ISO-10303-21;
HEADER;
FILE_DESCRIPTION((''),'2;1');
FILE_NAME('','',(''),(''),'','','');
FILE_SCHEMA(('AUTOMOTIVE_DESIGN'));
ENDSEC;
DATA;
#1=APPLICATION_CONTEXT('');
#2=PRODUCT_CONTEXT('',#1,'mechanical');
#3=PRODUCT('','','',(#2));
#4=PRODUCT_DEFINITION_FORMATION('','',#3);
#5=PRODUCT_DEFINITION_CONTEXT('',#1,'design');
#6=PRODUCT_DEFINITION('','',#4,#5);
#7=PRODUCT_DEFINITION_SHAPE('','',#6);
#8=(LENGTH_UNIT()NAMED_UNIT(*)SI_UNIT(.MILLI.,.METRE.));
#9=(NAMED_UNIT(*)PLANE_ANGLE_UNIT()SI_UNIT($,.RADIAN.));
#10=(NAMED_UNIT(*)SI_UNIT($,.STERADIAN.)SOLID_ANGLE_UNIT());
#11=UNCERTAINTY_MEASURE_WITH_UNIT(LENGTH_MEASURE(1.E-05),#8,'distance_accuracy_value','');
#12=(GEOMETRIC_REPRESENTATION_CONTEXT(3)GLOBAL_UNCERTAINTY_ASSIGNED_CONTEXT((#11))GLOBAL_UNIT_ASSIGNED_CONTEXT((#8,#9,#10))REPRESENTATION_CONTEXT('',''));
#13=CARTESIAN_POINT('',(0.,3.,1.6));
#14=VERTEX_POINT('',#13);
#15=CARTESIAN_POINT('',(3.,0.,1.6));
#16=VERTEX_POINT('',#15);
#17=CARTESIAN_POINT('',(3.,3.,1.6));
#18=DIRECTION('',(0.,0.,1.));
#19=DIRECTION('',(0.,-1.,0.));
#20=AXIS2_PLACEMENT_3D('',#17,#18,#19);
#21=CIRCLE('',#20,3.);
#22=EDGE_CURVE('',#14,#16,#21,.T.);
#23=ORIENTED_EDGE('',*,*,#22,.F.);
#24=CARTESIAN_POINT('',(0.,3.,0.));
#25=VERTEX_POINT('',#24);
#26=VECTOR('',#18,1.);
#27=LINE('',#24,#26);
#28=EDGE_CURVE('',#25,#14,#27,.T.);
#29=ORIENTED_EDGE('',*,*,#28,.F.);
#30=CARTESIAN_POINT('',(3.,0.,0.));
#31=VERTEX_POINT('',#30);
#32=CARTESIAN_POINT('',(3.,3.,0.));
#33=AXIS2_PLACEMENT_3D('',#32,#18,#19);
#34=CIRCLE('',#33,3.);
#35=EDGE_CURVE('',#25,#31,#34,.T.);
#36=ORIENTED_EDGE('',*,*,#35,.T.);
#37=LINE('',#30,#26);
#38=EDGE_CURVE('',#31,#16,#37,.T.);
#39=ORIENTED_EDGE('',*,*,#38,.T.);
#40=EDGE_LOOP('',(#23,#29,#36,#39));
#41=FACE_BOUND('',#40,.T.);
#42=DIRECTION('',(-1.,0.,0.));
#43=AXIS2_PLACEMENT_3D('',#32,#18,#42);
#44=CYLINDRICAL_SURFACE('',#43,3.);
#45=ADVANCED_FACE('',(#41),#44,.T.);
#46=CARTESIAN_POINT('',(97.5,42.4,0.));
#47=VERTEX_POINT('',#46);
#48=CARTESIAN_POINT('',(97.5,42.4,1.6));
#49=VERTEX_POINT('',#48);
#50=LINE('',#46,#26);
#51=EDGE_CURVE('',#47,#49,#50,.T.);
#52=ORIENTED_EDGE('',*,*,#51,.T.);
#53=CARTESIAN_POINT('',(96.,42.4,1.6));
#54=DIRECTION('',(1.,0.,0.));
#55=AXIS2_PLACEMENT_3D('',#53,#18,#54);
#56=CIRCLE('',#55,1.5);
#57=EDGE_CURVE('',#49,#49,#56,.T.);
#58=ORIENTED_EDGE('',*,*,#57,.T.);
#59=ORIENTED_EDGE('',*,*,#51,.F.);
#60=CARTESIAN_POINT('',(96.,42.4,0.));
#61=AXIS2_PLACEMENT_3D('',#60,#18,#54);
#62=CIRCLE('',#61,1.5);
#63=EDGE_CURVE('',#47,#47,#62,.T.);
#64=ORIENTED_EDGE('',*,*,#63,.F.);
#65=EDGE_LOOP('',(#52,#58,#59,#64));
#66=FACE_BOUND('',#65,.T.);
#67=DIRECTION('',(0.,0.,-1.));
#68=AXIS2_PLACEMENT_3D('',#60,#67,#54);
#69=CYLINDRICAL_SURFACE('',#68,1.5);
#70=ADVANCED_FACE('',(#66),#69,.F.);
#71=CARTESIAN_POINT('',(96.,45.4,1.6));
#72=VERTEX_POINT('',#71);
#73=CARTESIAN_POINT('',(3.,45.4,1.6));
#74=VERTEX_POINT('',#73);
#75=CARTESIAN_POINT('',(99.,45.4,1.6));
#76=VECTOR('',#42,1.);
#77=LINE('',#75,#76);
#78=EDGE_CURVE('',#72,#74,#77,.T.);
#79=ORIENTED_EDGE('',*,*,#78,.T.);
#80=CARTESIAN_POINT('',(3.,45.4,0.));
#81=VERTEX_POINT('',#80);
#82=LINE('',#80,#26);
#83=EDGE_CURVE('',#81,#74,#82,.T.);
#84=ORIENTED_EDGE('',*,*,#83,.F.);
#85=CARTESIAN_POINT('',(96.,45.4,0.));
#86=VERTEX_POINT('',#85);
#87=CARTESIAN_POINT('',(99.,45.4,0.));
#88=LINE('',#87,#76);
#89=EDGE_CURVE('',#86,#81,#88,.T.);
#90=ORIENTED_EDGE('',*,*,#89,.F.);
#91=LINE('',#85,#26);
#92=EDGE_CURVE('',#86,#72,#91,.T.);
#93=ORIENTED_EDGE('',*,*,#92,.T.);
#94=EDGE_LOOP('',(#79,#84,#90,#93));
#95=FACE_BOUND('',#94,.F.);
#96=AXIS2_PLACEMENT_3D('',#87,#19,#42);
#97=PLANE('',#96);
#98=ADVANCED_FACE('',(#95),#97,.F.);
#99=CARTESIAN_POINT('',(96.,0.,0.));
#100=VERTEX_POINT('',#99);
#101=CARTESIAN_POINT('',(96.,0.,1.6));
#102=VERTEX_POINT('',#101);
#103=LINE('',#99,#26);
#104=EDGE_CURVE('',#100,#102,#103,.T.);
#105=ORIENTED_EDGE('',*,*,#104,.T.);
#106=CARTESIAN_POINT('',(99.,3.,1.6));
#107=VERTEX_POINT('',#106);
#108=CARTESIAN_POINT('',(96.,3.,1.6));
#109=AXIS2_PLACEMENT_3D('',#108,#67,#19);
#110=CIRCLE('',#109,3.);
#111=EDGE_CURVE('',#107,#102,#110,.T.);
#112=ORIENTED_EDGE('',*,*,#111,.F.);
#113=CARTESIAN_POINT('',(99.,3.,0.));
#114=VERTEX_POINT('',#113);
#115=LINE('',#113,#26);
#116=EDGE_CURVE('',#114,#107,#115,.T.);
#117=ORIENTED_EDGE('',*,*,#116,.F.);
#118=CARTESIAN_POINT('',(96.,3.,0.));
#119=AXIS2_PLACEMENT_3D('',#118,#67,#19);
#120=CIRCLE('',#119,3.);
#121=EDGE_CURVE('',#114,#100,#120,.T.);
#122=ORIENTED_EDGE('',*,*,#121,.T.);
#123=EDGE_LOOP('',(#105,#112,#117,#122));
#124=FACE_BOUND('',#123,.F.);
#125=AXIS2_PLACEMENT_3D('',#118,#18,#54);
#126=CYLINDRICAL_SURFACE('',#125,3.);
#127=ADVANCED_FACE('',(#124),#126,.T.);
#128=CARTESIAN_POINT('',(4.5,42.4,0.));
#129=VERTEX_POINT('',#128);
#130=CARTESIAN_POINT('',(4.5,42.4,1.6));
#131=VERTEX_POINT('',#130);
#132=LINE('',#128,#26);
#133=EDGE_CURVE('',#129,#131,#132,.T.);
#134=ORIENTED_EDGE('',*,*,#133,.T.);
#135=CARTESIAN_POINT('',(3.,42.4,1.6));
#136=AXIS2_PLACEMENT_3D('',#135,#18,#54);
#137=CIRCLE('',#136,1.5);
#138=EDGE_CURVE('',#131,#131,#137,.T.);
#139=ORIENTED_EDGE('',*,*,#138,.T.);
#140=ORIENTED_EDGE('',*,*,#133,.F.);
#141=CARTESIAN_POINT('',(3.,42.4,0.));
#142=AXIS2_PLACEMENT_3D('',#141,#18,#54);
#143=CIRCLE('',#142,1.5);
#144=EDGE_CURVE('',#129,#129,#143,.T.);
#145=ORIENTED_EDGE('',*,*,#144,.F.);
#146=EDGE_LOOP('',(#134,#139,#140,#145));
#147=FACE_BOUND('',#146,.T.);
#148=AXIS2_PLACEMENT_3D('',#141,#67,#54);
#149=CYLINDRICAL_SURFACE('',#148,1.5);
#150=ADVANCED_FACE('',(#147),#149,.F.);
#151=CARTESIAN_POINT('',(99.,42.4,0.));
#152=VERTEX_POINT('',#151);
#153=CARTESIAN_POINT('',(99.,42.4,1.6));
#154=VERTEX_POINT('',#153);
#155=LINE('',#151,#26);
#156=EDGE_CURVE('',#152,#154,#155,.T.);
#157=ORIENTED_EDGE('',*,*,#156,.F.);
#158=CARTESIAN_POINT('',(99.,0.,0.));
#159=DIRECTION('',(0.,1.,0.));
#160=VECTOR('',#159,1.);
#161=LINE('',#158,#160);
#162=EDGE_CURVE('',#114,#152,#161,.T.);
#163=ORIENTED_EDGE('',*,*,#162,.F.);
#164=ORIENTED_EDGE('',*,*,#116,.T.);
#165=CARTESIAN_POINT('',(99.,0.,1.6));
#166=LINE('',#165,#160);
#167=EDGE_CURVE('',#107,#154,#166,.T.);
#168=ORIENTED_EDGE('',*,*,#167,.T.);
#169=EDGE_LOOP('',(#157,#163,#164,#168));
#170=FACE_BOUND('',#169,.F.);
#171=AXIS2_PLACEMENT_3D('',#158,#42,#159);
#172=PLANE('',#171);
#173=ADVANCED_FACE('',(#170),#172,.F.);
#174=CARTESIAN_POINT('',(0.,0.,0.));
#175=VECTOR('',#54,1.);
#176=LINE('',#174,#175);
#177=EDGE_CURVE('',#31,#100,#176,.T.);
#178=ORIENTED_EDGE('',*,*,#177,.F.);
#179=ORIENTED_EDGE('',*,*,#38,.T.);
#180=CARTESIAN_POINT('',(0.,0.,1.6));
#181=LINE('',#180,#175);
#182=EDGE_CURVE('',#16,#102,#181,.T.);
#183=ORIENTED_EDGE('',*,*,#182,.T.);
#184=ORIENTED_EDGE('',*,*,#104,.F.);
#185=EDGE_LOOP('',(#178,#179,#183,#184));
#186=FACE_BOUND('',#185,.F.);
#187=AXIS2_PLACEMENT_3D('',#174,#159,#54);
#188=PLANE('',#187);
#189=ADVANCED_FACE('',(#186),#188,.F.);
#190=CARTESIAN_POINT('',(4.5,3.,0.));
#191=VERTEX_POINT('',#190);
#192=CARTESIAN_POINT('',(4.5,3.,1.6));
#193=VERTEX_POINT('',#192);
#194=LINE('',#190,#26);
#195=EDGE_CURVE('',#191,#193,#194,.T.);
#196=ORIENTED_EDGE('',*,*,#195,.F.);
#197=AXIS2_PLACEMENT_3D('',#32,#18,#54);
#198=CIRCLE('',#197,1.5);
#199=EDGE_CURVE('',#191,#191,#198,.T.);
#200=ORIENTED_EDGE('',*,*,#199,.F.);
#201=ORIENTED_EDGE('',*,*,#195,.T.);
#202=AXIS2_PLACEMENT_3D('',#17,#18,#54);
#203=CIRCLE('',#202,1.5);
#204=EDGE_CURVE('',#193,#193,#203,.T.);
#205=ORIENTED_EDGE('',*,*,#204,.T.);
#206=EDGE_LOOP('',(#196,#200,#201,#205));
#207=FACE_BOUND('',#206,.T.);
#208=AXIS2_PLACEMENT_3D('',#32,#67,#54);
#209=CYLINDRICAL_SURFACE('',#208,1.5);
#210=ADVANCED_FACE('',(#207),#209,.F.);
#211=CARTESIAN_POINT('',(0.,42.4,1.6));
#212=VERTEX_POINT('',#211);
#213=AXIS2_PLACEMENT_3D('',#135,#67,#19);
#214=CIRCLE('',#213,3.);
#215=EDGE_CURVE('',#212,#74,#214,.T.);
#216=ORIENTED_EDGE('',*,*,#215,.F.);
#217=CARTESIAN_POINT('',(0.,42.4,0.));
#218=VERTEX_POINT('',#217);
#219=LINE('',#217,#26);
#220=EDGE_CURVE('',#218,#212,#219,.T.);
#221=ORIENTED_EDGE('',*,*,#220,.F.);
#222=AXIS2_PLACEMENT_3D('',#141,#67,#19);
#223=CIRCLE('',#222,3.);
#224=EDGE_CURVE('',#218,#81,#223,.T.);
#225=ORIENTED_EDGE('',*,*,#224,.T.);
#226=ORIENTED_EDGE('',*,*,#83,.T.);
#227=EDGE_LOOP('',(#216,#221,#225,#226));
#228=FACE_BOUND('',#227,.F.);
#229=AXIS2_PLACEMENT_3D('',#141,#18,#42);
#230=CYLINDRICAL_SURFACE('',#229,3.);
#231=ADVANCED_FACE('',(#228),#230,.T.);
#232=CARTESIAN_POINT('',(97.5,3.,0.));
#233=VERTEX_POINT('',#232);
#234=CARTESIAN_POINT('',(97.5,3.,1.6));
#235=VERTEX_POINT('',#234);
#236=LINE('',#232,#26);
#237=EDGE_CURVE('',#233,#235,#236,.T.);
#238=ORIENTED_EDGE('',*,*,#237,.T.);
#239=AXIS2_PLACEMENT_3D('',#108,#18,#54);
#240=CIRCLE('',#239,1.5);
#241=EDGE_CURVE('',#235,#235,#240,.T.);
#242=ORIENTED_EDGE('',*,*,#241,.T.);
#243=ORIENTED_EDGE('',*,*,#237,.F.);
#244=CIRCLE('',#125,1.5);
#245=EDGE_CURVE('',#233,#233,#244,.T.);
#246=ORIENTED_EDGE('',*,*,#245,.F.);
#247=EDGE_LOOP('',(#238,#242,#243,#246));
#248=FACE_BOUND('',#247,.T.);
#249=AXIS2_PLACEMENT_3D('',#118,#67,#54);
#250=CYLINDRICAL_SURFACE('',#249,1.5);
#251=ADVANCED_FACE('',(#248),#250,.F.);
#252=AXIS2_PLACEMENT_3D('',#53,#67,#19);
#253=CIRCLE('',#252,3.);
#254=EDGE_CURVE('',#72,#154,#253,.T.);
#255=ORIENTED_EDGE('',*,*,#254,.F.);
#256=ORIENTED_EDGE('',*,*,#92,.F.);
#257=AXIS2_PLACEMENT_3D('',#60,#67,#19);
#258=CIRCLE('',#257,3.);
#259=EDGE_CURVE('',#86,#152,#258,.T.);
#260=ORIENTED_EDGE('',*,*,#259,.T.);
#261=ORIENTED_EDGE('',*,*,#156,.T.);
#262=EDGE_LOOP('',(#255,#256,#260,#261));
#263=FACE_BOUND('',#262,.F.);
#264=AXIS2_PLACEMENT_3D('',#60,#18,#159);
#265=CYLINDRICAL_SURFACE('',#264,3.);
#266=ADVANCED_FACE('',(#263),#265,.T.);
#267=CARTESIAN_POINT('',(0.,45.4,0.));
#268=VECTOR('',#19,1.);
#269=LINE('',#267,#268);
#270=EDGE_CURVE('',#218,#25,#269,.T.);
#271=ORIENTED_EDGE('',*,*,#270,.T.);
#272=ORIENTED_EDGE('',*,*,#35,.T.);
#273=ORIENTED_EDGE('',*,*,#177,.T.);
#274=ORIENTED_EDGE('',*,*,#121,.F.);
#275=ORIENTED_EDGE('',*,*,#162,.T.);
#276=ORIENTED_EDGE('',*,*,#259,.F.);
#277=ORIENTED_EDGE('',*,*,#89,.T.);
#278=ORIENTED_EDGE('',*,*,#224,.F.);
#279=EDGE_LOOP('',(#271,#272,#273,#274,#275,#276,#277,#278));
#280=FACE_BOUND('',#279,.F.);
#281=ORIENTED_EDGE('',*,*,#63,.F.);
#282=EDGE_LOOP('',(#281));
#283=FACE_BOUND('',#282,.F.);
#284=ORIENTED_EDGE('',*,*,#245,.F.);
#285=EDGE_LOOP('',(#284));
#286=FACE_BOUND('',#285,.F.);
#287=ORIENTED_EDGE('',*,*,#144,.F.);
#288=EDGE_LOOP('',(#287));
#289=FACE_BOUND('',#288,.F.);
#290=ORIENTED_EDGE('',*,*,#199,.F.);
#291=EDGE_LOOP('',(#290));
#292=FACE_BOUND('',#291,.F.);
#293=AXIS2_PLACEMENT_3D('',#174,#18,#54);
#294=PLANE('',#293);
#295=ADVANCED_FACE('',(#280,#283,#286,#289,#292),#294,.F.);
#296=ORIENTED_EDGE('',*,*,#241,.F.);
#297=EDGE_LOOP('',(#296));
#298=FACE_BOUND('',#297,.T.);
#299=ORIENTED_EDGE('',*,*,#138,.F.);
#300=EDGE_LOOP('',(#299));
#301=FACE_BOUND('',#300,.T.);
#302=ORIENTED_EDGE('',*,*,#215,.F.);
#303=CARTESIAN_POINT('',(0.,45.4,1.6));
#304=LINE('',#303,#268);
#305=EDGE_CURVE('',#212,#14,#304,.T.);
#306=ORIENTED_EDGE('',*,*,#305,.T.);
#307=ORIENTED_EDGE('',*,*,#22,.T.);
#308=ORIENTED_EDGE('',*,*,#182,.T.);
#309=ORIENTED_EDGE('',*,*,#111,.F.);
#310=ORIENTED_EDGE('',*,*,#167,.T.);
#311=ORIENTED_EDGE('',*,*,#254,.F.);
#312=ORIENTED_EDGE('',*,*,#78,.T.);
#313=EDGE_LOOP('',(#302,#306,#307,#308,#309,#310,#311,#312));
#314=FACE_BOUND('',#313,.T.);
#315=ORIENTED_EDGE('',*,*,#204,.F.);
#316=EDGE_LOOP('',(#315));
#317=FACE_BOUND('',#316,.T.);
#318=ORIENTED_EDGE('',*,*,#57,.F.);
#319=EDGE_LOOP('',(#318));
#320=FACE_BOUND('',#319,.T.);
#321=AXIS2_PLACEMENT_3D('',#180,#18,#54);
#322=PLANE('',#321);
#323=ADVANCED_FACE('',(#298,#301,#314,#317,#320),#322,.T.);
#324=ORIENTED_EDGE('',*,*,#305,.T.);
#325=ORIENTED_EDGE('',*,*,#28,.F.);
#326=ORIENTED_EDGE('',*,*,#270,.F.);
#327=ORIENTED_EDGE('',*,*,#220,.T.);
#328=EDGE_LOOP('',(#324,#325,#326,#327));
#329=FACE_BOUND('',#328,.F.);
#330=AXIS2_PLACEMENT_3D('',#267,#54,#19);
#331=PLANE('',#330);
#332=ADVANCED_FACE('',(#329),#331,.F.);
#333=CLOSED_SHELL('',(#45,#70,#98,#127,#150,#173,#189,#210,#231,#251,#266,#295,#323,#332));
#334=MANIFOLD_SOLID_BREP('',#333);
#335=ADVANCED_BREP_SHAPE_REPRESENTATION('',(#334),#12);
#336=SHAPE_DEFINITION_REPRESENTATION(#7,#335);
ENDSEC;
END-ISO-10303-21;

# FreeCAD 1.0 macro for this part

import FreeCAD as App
import Part
import Sketcher

V = App.Vector
Q = App.Units.Quantity


def edges_at(feature, points):
    """Names of the edges that pass closest to the given points."""
    edges = feature.Shape.Edges
    near = lambda p: min(range(len(edges)), key=lambda i: edges[i].distToShape(Part.Vertex(*p))[0])
    return sorted({f"Edge{near(p) + 1}" for p in points})


def add_polygon(sketch, points):
    """Adds a closed chain of lines whose ends are joined by coincident constraints."""
    first, n = sketch.GeometryCount, len(points)
    for a, b in zip(points, points[1:] + points[:1]):
        sketch.addGeometry(Part.LineSegment(App.Vector(*a, 0), App.Vector(*b, 0)), False)
    for i in range(n):
        sketch.addConstraint(Sketcher.Constraint("Coincident", first + i, 2, first + (i + 1) % n, 1))

doc = App.newDocument("Part")
params = doc.addObject("Spreadsheet::Sheet", "Params")
for row, (alias, value) in enumerate([
    ("sketch1_diameter", "3 mm"),
    ("sketch1_width", "99 mm"),
    ("sketch1_height", "45.4 mm"),
    ("pad1_length", "1.6 mm"),
    ("fillet_radius", "3 mm"),
], start=1):
    params.set(f"A{row}", alias)
    params.set(f"B{row}", "=" + value)
    params.setAlias(f"B{row}", alias)

body = doc.addObject("PartDesign::Body", "Body")

# Sketch on XY plane
sketch1 = body.newObject("Sketcher::SketchObject", "Sketch")
sketch1.AttachmentSupport = (doc.getObject("XY_Plane"), [""])
sketch1.MapMode = "FlatFace"
add_polygon(sketch1, [(0, 45.4), (0, 0), (99, 0), (99, 45.4)])  # lines 0-3
sketch1.addGeometry(Part.Circle(V(3, 3, 0), V(0, 0, 1), 1.5), False)  # 4
sketch1.addGeometry(Part.Circle(V(96, 3, 0), V(0, 0, 1), 1.5), False)  # 5
sketch1.addGeometry(Part.Circle(V(3, 42.4, 0), V(0, 0, 1), 1.5), False)  # 6
sketch1.addGeometry(Part.Circle(V(96, 42.4, 0), V(0, 0, 1), 1.5), False)  # 7
sketch1.addConstraint(Sketcher.Constraint("Vertical", 0))
sketch1.addConstraint(Sketcher.Constraint("Horizontal", 1))
sketch1.addConstraint(Sketcher.Constraint("Vertical", 2))
sketch1.addConstraint(Sketcher.Constraint("Horizontal", 3))
sketch1.addConstraint(Sketcher.Constraint("Coincident", 0, 2, -1, 1))
sketch1.addConstraint(Sketcher.Constraint("Equal", 4, 5))
sketch1.addConstraint(Sketcher.Constraint("Equal", 5, 6))
sketch1.addConstraint(Sketcher.Constraint("Equal", 6, 7))
sketch1.addConstraint(Sketcher.Constraint("Horizontal", 4, 3, 5, 3))
sketch1.addConstraint(Sketcher.Constraint("Horizontal", 6, 3, 7, 3))
sketch1.addConstraint(Sketcher.Constraint("Vertical", 4, 3, 6, 3))
sketch1.addConstraint(Sketcher.Constraint("Vertical", 5, 3, 7, 3))
sketch1.addConstraint(Sketcher.Constraint("Diameter", 4, Q("3 mm")))
sketch1.addConstraint(Sketcher.Constraint("DistanceX", 1, 1, 1, 2, Q("99 mm")))
sketch1.addConstraint(Sketcher.Constraint("DistanceY", 0, 2, 0, 1, Q("45.4 mm")))
sketch1.addConstraint(Sketcher.Constraint("DistanceX", -1, 1, 4, 3, Q("3 mm")))
sketch1.addConstraint(Sketcher.Constraint("DistanceY", -1, 1, 4, 3, Q("3 mm")))
sketch1.addConstraint(Sketcher.Constraint("DistanceX", 5, 3, 1, 2, Q("3 mm")))
sketch1.addConstraint(Sketcher.Constraint("DistanceY", 7, 3, 2, 2, Q("3 mm")))
sketch1.setExpression("Constraints[16]", "Params.sketch1_diameter")
sketch1.setExpression("Constraints[17]", "Params.sketch1_width")
sketch1.setExpression("Constraints[18]", "Params.sketch1_height")
pad1 = body.newObject("PartDesign::Pad", "Pad")
pad1.Profile = sketch1
pad1.setExpression("Length", "Params.pad1_length")
doc.recompute()

fillet = body.newObject("PartDesign::Fillet", "Fillet")
fillet.Base = (pad1, edges_at(pad1, [
    (0, 0, 0.8),
    (99, 0, 0.8),
    (99, 45.4, 0.8),
    (0, 45.4, 0.8),
]))
fillet.setExpression("Radius", "Params.fillet_radius")

doc.recompute()
